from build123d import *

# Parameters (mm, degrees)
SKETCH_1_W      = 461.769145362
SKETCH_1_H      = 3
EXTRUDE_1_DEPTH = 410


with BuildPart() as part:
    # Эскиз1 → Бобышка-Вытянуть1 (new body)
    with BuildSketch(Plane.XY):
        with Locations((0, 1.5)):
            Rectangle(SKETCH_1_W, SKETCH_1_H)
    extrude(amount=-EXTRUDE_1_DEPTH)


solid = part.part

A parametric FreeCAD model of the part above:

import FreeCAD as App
import Part
import Sketcher

V = App.Vector

doc = App.newDocument("Part")
body = doc.addObject("PartDesign::Body", "Body")

# Sketch on XY plane
sketch1 = body.newObject("Sketcher::SketchObject", "Sketch")
sketch1.AttachmentSupport = (doc.getObject("XY_Plane"), [""])
sketch1.MapMode = "FlatFace"
sketch1.addGeometry([
    Part.LineSegment(V(-230.9, 3, 0), V(-230.9, 0, 0)),
    Part.LineSegment(V(-230.9, 0, 0), V(230.9, 0, 0)),
    Part.LineSegment(V(230.9, 0, 0), V(230.9, 3, 0)),
    Part.LineSegment(V(230.9, 3, 0), V(-230.9, 3, 0)),
], False)
sketch1.addConstraint([
    Sketcher.Constraint("Coincident", 0, 2, 1, 1),
    Sketcher.Constraint("Coincident", 1, 2, 2, 1),
    Sketcher.Constraint("Coincident", 2, 2, 3, 1),
    Sketcher.Constraint("Coincident", 3, 2, 0, 1),
    Sketcher.Constraint("Vertical", 0),
    Sketcher.Constraint("Horizontal", 1),
    Sketcher.Constraint("Vertical", 2),
    Sketcher.Constraint("Horizontal", 3),
    Sketcher.Constraint("Symmetric", 0, 2, 1, 2, -1, 1),
    Sketcher.Constraint("DistanceY", 0, 2, 0, 1, 3.0),
    Sketcher.Constraint("DistanceX", 1, 1, 1, 2, 461.769145),
])
pad1 = body.newObject("PartDesign::Pad", "Pad")
pad1.Profile = sketch1
pad1.Length = 410
pad1.Reversed = True

doc.recompute()
